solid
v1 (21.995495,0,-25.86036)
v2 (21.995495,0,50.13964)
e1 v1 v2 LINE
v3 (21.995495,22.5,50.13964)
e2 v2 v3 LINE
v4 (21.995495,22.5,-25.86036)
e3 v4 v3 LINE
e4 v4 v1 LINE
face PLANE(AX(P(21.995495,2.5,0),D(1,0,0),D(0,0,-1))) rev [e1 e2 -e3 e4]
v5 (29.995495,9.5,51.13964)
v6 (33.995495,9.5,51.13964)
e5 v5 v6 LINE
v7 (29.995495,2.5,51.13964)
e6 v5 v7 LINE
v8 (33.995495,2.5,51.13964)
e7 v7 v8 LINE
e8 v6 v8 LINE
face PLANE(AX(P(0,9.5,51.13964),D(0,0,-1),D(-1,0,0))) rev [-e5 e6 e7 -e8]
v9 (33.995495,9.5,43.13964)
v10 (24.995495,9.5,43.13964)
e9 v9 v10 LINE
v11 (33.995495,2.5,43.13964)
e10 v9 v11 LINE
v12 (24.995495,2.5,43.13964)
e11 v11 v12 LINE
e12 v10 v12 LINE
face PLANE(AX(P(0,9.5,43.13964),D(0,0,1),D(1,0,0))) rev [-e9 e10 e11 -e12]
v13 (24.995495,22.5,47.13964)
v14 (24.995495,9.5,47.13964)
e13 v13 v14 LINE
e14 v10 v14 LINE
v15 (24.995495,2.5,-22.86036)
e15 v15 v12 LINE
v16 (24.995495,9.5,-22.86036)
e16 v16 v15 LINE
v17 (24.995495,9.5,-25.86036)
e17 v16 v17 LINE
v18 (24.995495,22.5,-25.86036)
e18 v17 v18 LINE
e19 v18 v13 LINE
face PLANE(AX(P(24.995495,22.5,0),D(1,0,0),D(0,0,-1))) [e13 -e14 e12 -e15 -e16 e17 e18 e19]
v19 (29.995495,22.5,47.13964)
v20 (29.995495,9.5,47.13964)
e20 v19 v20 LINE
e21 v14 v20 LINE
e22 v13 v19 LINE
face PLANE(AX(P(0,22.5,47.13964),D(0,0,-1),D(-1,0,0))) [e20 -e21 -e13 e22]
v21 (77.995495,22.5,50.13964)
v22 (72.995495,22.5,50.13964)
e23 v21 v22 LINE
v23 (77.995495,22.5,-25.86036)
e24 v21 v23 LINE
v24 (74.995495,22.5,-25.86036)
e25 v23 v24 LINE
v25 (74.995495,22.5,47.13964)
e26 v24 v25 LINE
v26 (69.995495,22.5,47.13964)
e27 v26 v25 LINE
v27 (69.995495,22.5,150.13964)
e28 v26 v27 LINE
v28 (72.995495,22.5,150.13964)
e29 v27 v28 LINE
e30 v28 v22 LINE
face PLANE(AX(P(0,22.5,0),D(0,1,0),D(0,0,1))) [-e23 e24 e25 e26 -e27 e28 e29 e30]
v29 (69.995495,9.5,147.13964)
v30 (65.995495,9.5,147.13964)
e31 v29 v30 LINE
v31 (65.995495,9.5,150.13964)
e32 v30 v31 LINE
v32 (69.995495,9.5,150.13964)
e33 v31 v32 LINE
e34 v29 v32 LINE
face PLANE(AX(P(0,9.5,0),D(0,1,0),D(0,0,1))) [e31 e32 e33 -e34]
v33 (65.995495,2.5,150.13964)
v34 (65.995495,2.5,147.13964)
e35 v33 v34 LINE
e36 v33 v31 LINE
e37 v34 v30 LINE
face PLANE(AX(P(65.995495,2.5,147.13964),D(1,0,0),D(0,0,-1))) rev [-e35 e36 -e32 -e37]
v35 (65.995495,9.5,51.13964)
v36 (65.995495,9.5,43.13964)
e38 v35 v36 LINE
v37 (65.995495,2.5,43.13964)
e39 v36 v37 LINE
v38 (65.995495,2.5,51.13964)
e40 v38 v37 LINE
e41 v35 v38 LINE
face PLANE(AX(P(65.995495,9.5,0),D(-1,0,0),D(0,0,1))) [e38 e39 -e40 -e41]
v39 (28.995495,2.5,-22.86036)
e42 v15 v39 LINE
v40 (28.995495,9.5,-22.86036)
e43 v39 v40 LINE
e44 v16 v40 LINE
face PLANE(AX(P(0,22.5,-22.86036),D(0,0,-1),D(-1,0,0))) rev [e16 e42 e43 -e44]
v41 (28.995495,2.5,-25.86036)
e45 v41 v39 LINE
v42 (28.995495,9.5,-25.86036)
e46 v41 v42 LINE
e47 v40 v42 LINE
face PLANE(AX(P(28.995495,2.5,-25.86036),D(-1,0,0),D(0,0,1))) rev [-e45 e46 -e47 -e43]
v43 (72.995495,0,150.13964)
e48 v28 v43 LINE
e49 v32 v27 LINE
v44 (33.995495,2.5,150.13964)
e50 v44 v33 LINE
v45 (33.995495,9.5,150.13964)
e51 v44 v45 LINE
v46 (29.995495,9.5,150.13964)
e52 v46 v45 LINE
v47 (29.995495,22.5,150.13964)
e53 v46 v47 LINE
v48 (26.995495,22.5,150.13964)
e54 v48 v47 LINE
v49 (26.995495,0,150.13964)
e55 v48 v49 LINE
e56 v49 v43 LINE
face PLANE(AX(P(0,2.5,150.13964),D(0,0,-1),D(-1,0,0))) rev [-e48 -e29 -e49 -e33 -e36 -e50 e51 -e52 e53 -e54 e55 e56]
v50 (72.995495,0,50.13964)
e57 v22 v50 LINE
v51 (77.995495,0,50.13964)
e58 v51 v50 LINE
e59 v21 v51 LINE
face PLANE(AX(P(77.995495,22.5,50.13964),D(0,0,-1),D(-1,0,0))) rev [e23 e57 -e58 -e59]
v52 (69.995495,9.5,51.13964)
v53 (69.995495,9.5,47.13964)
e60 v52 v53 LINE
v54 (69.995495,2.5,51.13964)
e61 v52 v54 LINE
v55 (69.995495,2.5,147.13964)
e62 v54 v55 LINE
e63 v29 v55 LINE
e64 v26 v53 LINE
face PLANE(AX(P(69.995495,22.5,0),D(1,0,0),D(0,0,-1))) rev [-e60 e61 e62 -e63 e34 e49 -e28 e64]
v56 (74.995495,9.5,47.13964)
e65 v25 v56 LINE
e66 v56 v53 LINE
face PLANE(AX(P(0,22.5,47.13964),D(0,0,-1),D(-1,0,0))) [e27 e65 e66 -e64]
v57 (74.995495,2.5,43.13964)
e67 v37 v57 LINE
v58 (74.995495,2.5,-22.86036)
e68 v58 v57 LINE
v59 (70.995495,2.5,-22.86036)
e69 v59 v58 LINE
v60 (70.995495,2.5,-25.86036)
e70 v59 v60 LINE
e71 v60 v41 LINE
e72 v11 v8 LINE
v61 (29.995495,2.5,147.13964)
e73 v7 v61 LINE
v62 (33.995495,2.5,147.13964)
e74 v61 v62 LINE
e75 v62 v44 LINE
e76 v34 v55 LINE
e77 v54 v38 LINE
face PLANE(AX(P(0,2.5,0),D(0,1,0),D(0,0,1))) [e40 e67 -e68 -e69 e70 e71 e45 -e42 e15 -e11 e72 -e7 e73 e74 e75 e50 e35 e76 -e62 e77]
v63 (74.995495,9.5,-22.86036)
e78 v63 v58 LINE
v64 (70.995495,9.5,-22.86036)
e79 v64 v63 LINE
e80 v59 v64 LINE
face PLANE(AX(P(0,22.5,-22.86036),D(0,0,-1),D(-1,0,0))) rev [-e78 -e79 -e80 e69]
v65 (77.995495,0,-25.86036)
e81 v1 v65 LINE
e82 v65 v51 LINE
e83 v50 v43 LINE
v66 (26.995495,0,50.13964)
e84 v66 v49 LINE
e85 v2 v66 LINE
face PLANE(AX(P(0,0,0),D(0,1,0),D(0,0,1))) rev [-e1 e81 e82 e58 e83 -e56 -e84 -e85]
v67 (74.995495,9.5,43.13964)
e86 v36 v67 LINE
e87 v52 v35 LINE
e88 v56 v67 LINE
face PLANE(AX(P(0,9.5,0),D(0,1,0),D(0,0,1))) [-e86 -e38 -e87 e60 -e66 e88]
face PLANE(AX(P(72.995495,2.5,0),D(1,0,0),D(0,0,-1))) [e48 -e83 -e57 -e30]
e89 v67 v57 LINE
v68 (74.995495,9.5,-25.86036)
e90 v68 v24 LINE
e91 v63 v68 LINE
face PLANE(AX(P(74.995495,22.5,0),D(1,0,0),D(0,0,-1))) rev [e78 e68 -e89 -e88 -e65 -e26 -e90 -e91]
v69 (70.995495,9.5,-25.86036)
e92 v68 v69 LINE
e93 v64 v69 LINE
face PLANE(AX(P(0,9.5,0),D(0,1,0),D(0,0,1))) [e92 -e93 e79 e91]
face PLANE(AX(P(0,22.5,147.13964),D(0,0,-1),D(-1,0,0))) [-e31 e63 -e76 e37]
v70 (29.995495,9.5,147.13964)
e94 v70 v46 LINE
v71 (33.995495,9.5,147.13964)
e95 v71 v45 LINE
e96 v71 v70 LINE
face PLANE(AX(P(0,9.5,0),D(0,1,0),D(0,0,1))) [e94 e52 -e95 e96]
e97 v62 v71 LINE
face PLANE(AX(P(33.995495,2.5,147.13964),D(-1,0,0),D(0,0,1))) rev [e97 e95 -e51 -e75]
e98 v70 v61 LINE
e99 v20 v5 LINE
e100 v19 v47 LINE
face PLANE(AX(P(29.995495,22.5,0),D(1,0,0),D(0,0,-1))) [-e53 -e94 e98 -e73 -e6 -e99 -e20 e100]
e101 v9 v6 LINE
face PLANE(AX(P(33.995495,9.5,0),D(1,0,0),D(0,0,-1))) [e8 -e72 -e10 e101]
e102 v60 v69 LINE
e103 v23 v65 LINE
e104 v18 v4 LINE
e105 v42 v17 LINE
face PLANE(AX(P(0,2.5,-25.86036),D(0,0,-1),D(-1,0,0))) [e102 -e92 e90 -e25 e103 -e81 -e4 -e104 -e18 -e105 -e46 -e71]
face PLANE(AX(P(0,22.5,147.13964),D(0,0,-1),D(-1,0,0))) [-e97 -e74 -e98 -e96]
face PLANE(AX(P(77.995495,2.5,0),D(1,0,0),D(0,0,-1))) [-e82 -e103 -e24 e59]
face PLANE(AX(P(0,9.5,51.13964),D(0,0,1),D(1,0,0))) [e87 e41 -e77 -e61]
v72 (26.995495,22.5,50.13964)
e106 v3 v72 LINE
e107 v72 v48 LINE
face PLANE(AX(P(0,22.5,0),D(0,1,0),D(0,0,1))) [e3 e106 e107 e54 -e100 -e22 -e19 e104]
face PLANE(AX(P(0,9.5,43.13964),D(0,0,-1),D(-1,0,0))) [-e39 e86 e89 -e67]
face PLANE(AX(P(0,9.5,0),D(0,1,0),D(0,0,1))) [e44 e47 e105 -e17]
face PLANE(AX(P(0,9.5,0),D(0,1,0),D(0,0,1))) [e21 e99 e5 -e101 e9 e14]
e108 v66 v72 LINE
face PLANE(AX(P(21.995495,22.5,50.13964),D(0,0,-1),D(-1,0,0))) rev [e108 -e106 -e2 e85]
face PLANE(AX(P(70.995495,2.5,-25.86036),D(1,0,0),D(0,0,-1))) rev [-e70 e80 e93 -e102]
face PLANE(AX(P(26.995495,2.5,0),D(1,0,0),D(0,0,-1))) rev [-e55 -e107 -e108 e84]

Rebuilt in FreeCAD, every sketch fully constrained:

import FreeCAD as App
import Part
import Sketcher


def add_polygon(sketch, points):
    """Adds a closed chain of lines whose ends are joined by coincident constraints."""
    first, n = sketch.GeometryCount, len(points)
    for a, b in zip(points, points[1:] + points[:1]):
        sketch.addGeometry(Part.LineSegment(App.Vector(*a, 0), App.Vector(*b, 0)), False)
    for i in range(n):
        sketch.addConstraint(Sketcher.Constraint("Coincident", first + i, 2, first + (i + 1) % n, 1))

doc = App.newDocument("Part")
body = doc.addObject("PartDesign::Body", "Body")

# Sketch on XZ plane
sketch1 = body.newObject("Sketcher::SketchObject", "Sketch")
sketch1.AttachmentSupport = (doc.getObject("XZ_Plane"), [""])
sketch1.MapMode = "FlatFace"
add_polygon(sketch1, [(27, 47), (27, 150), (73, 150), (73, 47), (78, 47), (78, -26), (22, -26), (22, 47)])  # lines 0-7
sketch1.addConstraint([
    Sketcher.Constraint("Vertical", 0),
    Sketcher.Constraint("Horizontal", 1),
    Sketcher.Constraint("Vertical", 2),
    Sketcher.Constraint("Horizontal", 3),
    Sketcher.Constraint("Vertical", 4),
    Sketcher.Constraint("Horizontal", 5),
    Sketcher.Constraint("Vertical", 6),
    Sketcher.Constraint("Horizontal", 7),
    Sketcher.Constraint("Horizontal", 3, 2, 6, 2),
    Sketcher.Constraint("Equal", 3, 7),
    Sketcher.Constraint("DistanceX", 1, 1, 1, 2, 46.0),
    Sketcher.Constraint("DistanceX", 3, 1, 3, 2, 5.0),
    Sketcher.Constraint("DistanceY", 0, 1, 0, 2, 103.0),
    Sketcher.Constraint("DistanceY", 4, 2, 4, 1, 73.0),
    Sketcher.Constraint("DistanceY", -1, 1, 0, 2, 150.13964),
    Sketcher.Constraint("DistanceX", -1, 1, 0, 2, 26.995495),
])
pad1 = body.newObject("PartDesign::Pad", "Pad")
pad1.Profile = sketch1
pad1.Length = 2.5
pad1.Reversed = True

# Sketch on XZ plane
sketch2 = body.newObject("Sketcher::SketchObject", "Sketch001")
sketch2.AttachmentSupport = (doc.getObject("XZ_Plane"), [""])
sketch2.MapMode = "FlatFace"
sketch2.AttachmentOffset = App.Placement(App.Vector(0, 0, -2.5), App.Rotation())
add_polygon(sketch2, [(25, 47.1), (25, -22.9), (75, -22.9), (75, 47.1), (78, 47.1), (78, -25.9), (22, -25.9), (22, 47.1)])  # lines 0-7
add_polygon(sketch2, [(30, 47.1), (27, 47.1), (27, 150.1), (73, 150.1), (73, 47.1), (70, 47.1), (70, 147.1), (30, 147.1)])  # lines 8-15
sketch2.addConstraint([
    Sketcher.Constraint("Vertical", 0),
    Sketcher.Constraint("Horizontal", 1),
    Sketcher.Constraint("Vertical", 2),
    Sketcher.Constraint("Horizontal", 3),
    Sketcher.Constraint("Vertical", 4),
    Sketcher.Constraint("Horizontal", 5),
    Sketcher.Constraint("Vertical", 6),
    Sketcher.Constraint("Horizontal", 7),
    Sketcher.Constraint("Horizontal", 8),
    Sketcher.Constraint("Vertical", 9),
    Sketcher.Constraint("Horizontal", 10),
    Sketcher.Constraint("Vertical", 11),
    Sketcher.Constraint("Horizontal", 12),
    Sketcher.Constraint("Vertical", 13),
    Sketcher.Constraint("Horizontal", 14),
    Sketcher.Constraint("Vertical", 15),
    Sketcher.Constraint("Horizontal", 3, 2, 6, 2),
    Sketcher.Constraint("Horizontal", 7, 2, 8, 2),
    Sketcher.Constraint("Horizontal", 8, 2, 11, 2),
    Sketcher.Constraint("Equal", 3, 7),
    Sketcher.Constraint("Equal", 7, 8),
    Sketcher.Constraint("Equal", 8, 12),
    Sketcher.Constraint("DistanceX", 1, 1, 1, 2, 50.0),
    Sketcher.Constraint("DistanceX", 3, 1, 3, 2, 3.0),
    Sketcher.Constraint("DistanceX", 10, 1, 10, 2, 46.0),
    Sketcher.Constraint("DistanceY", 0, 2, 0, 1, 70.0),
    Sketcher.Constraint("DistanceY", 4, 2, 4, 1, 73.0),
    Sketcher.Constraint("DistanceY", 9, 1, 9, 2, 103.0),
    Sketcher.Constraint("DistanceY", 13, 1, 13, 2, 100.0),
    Sketcher.Constraint("DistanceX", 7, 2, 8, 2, 2.0),
    Sketcher.Constraint("DistanceY", 0, 2, -1, 1, 22.86036),
    Sketcher.Constraint("DistanceX", -1, 1, 0, 2, 24.995495),
])
pad2 = body.newObject("PartDesign::Pad", "Pad001")
pad2.Profile = sketch2
pad2.Length = 20
pad2.Reversed = True

# Sketch on YZ plane
sketch3 = body.newObject("Sketcher::SketchObject", "Sketch002")
sketch3.AttachmentSupport = (doc.getObject("YZ_Plane"), [""])
sketch3.MapMode = "FlatFace"
sketch3.AttachmentOffset = App.Placement(App.Vector(0, 0, 26.995495), App.Rotation())
add_polygon(sketch3, [(22.5, 47.1), (0, 47.1), (0, 50.1), (22.5, 50.1)])  # lines 0-3
sketch3.addConstraint([
    Sketcher.Constraint("Horizontal", 0),
    Sketcher.Constraint("Vertical", 1),
    Sketcher.Constraint("Horizontal", 2),
    Sketcher.Constraint("Vertical", 3),
    Sketcher.Constraint("PointOnObject", 0, 2, -2),
    Sketcher.Constraint("DistanceY", 1, 1, 1, 2, 3.0),
    Sketcher.Constraint("DistanceX", 0, 2, 0, 1, 22.5),
    Sketcher.Constraint("DistanceY", -1, 1, 0, 2, 47.13964),
])
pad3 = body.newObject("PartDesign::Pad", "Pad002")
pad3.Profile = sketch3
pad3.Length = 5
pad3.Reversed = True

# Sketch on YZ plane
sketch4 = body.newObject("Sketcher::SketchObject", "Sketch003")
sketch4.AttachmentSupport = (doc.getObject("YZ_Plane"), [""])
sketch4.MapMode = "FlatFace"
sketch4.AttachmentOffset = App.Placement(App.Vector(0, 0, 72.995495), App.Rotation())
add_polygon(sketch4, [(22.5, 50.1), (0, 50.1), (0, 47.1), (22.5, 47.1)])  # lines 0-3
sketch4.addConstraint([
    Sketcher.Constraint("Horizontal", 0),
    Sketcher.Constraint("Vertical", 1),
    Sketcher.Constraint("Horizontal", 2),
    Sketcher.Constraint("Vertical", 3),
    Sketcher.Constraint("PointOnObject", 0, 2, -2),
    Sketcher.Constraint("DistanceY", 1, 2, 1, 1, 3.0),
    Sketcher.Constraint("DistanceX", 0, 2, 0, 1, 22.5),
    Sketcher.Constraint("DistanceY", -1, 1, 0, 2, 50.13964),
])
pad4 = body.newObject("PartDesign::Pad", "Pad003")
pad4.Profile = sketch4
pad4.Length = 5

# Sketch on XZ plane
sketch5 = body.newObject("Sketcher::SketchObject", "Sketch004")
sketch5.AttachmentSupport = (doc.getObject("XZ_Plane"), [""])
sketch5.MapMode = "FlatFace"
sketch5.AttachmentOffset = App.Placement(App.Vector(0, 0, -22.5), App.Rotation())
add_polygon(sketch5, [(25, -25.9), (25, -22.9), (29, -22.9), (29, -25.9)])  # lines 0-3
add_polygon(sketch5, [(71, -25.9), (71, -22.9), (75, -22.9), (75, -25.9)])  # lines 4-7
add_polygon(sketch5, [(66, 147.1), (66, 150.1), (70, 150.1), (70, 147.1)])  # lines 8-11
add_polygon(sketch5, [(30, 147.1), (30, 150.1), (34, 150.1), (34, 147.1)])  # lines 12-15
sketch5.addConstraint([
    Sketcher.Constraint("Vertical", 0),
    Sketcher.Constraint("Horizontal", 1),
    Sketcher.Constraint("Vertical", 2),
    Sketcher.Constraint("Horizontal", 3),
    Sketcher.Constraint("Vertical", 4),
    Sketcher.Constraint("Horizontal", 5),
    Sketcher.Constraint("Vertical", 6),
    Sketcher.Constraint("Horizontal", 7),
    Sketcher.Constraint("Vertical", 8),
    Sketcher.Constraint("Horizontal", 9),
    Sketcher.Constraint("Vertical", 10),
    Sketcher.Constraint("Horizontal", 11),
    Sketcher.Constraint("Vertical", 12),
    Sketcher.Constraint("Horizontal", 13),
    Sketcher.Constraint("Vertical", 14),
    Sketcher.Constraint("Horizontal", 15),
    Sketcher.Constraint("Horizontal", 1, 2, 4, 2),
    Sketcher.Constraint("Horizontal", 3, 2, 6, 2),
    Sketcher.Constraint("Horizontal", 9, 2, 12, 2),
    Sketcher.Constraint("Horizontal", 11, 2, 14, 2),
    Sketcher.Constraint("Equal", 3, 5),
    Sketcher.Constraint("Equal", 7, 9),
    Sketcher.Constraint("Equal", 11, 13),
    Sketcher.Constraint("Equal", 6, 8),
    Sketcher.Constraint("DistanceX", 1, 1, 1, 2, 4.0),
    Sketcher.Constraint("DistanceY", 0, 1, 0, 2, 3.0),
    Sketcher.Constraint("DistanceX", 1, 2, 4, 2, 42.0),
    Sketcher.Constraint("DistanceX", 8, 2, 4, 2, 5.0),
    Sketcher.Constraint("DistanceY", 4, 2, 8, 2, 173.0),
    Sketcher.Constraint("DistanceX", 12, 2, 8, 2, 36.0),
    Sketcher.Constraint("DistanceY", 0, 2, -1, 1, 22.86036),
    Sketcher.Constraint("DistanceX", -1, 1, 0, 2, 24.995495),
])
pocket1 = body.newObject("PartDesign::Pocket", "Pocket")
pocket1.Profile = sketch5
pocket1.Length = 13
pocket1.Reversed = True

# Sketch on XZ plane
sketch6 = body.newObject("Sketcher::SketchObject", "Sketch005")
sketch6.AttachmentSupport = (doc.getObject("XZ_Plane"), [""])
sketch6.MapMode = "FlatFace"
sketch6.AttachmentOffset = App.Placement(App.Vector(0, 0, -22.5), App.Rotation())
add_polygon(sketch6, [(29, -25.9), (29, -22.9), (71, -22.9), (71, -25.9)])  # lines 0-3
sketch6.addConstraint([
    Sketcher.Constraint("Vertical", 0),
    Sketcher.Constraint("Horizontal", 1),
    Sketcher.Constraint("Vertical", 2),
    Sketcher.Constraint("Horizontal", 3),
    Sketcher.Constraint("DistanceX", 1, 1, 1, 2, 42.0),
    Sketcher.Constraint("DistanceY", 0, 1, 0, 2, 3.0),
    Sketcher.Constraint("DistanceY", 0, 2, -1, 1, 22.86036),
    Sketcher.Constraint("DistanceX", -1, 1, 0, 2, 28.995495),
])
pocket2 = body.newObject("PartDesign::Pocket", "Pocket001")
pocket2.Profile = sketch6
pocket2.Length = 20
pocket2.Reversed = True

# Sketch on XZ plane
sketch7 = body.newObject("Sketcher::SketchObject", "Sketch006")
sketch7.AttachmentSupport = (doc.getObject("XZ_Plane"), [""])
sketch7.MapMode = "FlatFace"
sketch7.AttachmentOffset = App.Placement(App.Vector(0, 0, -22.5), App.Rotation())
add_polygon(sketch7, [(34, 147.1), (34, 150.1), (66, 150.1), (66, 147.1)])  # lines 0-3
sketch7.addConstraint([
    Sketcher.Constraint("Vertical", 0),
    Sketcher.Constraint("Horizontal", 1),
    Sketcher.Constraint("Vertical", 2),
    Sketcher.Constraint("Horizontal", 3),
    Sketcher.Constraint("DistanceX", 1, 1, 1, 2, 32.0),
    Sketcher.Constraint("DistanceY", 0, 1, 0, 2, 3.0),
    Sketcher.Constraint("DistanceY", -1, 1, 0, 2, 150.13964),
    Sketcher.Constraint("DistanceX", -1, 1, 0, 2, 33.995495),
])
pocket3 = body.newObject("PartDesign::Pocket", "Pocket002")
pocket3.Profile = sketch7
pocket3.Length = 20
pocket3.Reversed = True

# Sketch on XZ plane
sketch8 = body.newObject("Sketcher::SketchObject", "Sketch007")
sketch8.AttachmentSupport = (doc.getObject("XZ_Plane"), [""])
sketch8.MapMode = "FlatFace"
sketch8.AttachmentOffset = App.Placement(App.Vector(0, 0, -2.5), App.Rotation())
add_polygon(sketch8, [(30, 47.1), (30, 51.1), (34, 51.1), (34, 43.1), (25, 43.1), (25, 47.1)])  # lines 0-5
add_polygon(sketch8, [(70, 47.1), (75, 47.1), (75, 43.1), (66, 43.1), (66, 51.1), (70, 51.1)])  # lines 6-11
sketch8.addConstraint([
    Sketcher.Constraint("Vertical", 0),
    Sketcher.Constraint("Horizontal", 1),
    Sketcher.Constraint("Vertical", 2),
    Sketcher.Constraint("Horizontal", 3),
    Sketcher.Constraint("Vertical", 4),
    Sketcher.Constraint("Horizontal", 5),
    Sketcher.Constraint("Horizontal", 6),
    Sketcher.Constraint("Vertical", 7),
    Sketcher.Constraint("Horizontal", 8),
    Sketcher.Constraint("Vertical", 9),
    Sketcher.Constraint("Horizontal", 10),
    Sketcher.Constraint("Vertical", 11),
    Sketcher.Constraint("Horizontal", 5, 2, 6, 2),
    Sketcher.Constraint("Horizontal", 3, 2, 7, 2),
    Sketcher.Constraint("Horizontal", 1, 2, 9, 2),
    Sketcher.Constraint("Equal", 5, 6),
    Sketcher.Constraint("Equal", 3, 8),
    Sketcher.Constraint("Equal", 10, 0),
    Sketcher.Constraint("Equal", 0, 4),
    Sketcher.Constraint("DistanceX", 1, 1, 1, 2, 4.0),
    Sketcher.Constraint("DistanceX", 3, 2, 3, 1, 9.0),
    Sketcher.Constraint("DistanceX", 1, 2, 6, 2, 41.0),
    Sketcher.Constraint("DistanceY", -1, 1, 0, 2, 51.13964),
    Sketcher.Constraint("DistanceX", -1, 1, 0, 2, 29.995495),
])
pad5 = body.newObject("PartDesign::Pad", "Pad004")
pad5.Profile = sketch8
pad5.Length = 7
pad5.Reversed = True

doc.recompute()
